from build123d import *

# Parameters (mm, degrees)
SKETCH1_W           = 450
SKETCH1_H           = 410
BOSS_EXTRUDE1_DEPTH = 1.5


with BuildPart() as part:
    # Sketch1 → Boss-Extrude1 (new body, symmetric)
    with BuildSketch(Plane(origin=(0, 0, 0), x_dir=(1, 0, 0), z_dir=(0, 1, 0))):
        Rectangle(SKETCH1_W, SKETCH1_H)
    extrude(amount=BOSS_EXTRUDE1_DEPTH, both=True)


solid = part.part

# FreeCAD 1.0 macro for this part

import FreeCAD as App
import Part
import Sketcher
from FreeCAD import Vector


def add_polygon(sketch, points):
    """Adds a closed chain of lines whose ends are joined by coincident constraints."""
    first, n = sketch.GeometryCount, len(points)
    for a, b in zip(points, points[1:] + points[:1]):
        sketch.addGeometry(Part.LineSegment(App.Vector(*a, 0), App.Vector(*b, 0)), False)
    for i in range(n):
        sketch.addConstraint(Sketcher.Constraint("Coincident", first + i, 2, first + (i + 1) % n, 1))

doc = App.newDocument("Part")
body = doc.addObject("PartDesign::Body", "Body")

sketch1 = body.newObject("Sketcher::SketchObject", "Sketch")
sketch1.AttachmentSupport = (doc.getObject("XZ_Plane"), [""])
sketch1.MapMode = "FlatFace"
add_polygon(sketch1, [(-225, -205), (-225, 205), (225, 205), (225, -205)])
sketch1.addConstraint(Sketcher.Constraint("Vertical", 0))
sketch1.addConstraint(Sketcher.Constraint("Horizontal", 1))
sketch1.addConstraint(Sketcher.Constraint("Vertical", 2))
sketch1.addConstraint(Sketcher.Constraint("Horizontal", 3))
sketch1.addConstraint(Sketcher.Constraint("Symmetric", 0, 2, 2, 2, -1, 1))
sketch1.addConstraint(Sketcher.Constraint("DistanceX", 1, 1, 1, 2, 450.0))
sketch1.addConstraint(Sketcher.Constraint("DistanceY", 0, 1, 0, 2, 410.0))
pad1 = body.newObject("PartDesign::Pad", "Pad")
pad1.Profile = sketch1
pad1.Length = 3
pad1.Midplane = True

doc.recompute()
